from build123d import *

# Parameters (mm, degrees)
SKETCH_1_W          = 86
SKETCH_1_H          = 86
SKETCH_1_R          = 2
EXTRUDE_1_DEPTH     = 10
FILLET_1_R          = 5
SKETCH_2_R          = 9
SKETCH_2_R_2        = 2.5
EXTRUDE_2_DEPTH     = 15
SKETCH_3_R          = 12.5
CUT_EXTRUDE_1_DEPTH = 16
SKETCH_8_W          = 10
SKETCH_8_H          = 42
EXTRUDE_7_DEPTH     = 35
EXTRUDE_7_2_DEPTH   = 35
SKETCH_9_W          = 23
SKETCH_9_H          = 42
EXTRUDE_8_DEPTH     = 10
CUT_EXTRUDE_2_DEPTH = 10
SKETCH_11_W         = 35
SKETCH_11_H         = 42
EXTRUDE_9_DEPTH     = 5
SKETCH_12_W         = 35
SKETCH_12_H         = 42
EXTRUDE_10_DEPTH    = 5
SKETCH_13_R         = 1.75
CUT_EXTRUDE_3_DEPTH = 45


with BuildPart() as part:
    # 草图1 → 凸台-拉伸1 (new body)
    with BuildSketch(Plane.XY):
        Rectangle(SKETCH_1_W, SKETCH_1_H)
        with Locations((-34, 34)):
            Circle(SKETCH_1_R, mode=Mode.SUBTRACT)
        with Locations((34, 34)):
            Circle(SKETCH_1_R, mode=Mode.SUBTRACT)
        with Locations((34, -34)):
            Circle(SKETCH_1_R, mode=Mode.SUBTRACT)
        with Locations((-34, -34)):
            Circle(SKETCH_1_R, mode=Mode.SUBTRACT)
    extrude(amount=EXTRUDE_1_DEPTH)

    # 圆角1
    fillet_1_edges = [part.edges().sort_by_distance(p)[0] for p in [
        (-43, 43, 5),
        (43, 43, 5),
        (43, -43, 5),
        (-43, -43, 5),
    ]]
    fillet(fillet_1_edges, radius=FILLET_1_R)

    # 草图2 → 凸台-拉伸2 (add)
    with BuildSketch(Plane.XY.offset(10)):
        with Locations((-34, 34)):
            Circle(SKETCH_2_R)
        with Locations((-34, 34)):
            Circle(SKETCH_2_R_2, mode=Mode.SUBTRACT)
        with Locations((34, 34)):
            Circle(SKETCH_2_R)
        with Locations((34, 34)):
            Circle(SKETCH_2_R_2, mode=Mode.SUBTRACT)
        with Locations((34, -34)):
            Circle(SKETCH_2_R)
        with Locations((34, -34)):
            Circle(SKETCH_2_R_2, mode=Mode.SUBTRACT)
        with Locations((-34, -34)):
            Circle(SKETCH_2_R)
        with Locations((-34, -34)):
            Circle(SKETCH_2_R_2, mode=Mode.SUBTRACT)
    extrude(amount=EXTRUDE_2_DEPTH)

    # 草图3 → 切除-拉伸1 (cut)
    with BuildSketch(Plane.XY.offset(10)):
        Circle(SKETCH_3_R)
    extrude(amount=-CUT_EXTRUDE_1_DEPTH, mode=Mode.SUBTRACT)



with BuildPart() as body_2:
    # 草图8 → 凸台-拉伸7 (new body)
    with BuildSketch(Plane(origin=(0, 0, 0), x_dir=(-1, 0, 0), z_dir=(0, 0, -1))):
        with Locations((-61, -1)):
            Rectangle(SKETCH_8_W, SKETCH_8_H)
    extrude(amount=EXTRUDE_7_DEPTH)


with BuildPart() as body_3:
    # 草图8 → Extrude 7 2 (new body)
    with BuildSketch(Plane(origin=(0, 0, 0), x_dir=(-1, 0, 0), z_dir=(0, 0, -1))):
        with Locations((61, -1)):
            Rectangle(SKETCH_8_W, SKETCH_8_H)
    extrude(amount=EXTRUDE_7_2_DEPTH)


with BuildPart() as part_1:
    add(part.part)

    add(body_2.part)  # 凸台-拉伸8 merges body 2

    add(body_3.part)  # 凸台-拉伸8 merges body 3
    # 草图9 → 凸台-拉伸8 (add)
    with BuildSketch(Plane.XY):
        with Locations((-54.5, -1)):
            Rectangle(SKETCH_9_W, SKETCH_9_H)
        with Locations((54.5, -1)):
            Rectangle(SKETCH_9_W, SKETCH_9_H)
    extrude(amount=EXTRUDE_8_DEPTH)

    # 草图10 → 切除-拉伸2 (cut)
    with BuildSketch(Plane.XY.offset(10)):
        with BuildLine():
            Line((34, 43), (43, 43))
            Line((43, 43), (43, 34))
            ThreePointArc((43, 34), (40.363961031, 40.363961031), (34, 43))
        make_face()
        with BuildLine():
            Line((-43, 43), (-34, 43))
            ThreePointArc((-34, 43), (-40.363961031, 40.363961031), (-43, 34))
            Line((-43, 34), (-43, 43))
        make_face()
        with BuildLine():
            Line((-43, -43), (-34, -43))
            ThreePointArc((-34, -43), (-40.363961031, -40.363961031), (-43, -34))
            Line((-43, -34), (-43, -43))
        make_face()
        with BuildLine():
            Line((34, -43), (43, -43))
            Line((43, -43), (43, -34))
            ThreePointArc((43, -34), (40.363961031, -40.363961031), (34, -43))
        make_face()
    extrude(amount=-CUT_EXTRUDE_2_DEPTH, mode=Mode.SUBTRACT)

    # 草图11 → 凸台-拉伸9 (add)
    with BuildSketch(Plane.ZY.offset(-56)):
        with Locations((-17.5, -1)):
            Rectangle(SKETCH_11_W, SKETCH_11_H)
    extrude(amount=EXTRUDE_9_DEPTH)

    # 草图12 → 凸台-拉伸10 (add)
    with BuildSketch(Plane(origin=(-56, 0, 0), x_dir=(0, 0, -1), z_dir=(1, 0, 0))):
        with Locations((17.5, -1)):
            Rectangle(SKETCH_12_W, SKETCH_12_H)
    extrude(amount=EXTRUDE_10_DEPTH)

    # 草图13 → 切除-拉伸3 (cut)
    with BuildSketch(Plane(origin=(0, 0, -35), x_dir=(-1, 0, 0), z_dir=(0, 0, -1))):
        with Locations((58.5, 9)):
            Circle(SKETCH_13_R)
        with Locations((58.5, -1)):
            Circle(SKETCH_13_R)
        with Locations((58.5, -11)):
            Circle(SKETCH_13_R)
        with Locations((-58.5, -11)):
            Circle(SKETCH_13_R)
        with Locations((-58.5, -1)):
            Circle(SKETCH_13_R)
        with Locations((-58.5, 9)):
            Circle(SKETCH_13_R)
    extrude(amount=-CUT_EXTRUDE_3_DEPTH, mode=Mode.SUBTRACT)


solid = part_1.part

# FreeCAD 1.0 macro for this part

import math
import FreeCAD as App
import Part
import Sketcher

V = App.Vector
Q = App.Units.Quantity


def edges_at(feature, points):
    """Names of the edges that pass closest to the given points."""
    edges = feature.Shape.Edges
    near = lambda p: min(range(len(edges)), key=lambda i: edges[i].distToShape(Part.Vertex(*p))[0])
    return sorted({f"Edge{near(p) + 1}" for p in points})

doc = App.newDocument("Part")
body = doc.addObject("PartDesign::Body", "Body")

sketch1 = body.newObject("Sketcher::SketchObject", "Sketch")
sketch1.AttachmentSupport = (doc.getObject("XY_Plane"), [""])
sketch1.MapMode = "FlatFace"
sketch1.addGeometry([
    Part.LineSegment(V(-43, 43, 0), V(-43, -43, 0)),
    Part.LineSegment(V(-43, -43, 0), V(43, -43, 0)),
    Part.LineSegment(V(43, -43, 0), V(43, 43, 0)),
    Part.LineSegment(V(43, 43, 0), V(-43, 43, 0)),
    Part.Circle(V(-34, -34, 0), V(0, 0, 1), 2),
    Part.Circle(V(34, -34, 0), V(0, 0, 1), 2),
    Part.Circle(V(-34, 34, 0), V(0, 0, 1), 2),
    Part.Circle(V(34, 34, 0), V(0, 0, 1), 2),
], False)
sketch1.addConstraint([
    Sketcher.Constraint("Coincident", 0, 2, 1, 1),
    Sketcher.Constraint("Coincident", 1, 2, 2, 1),
    Sketcher.Constraint("Coincident", 2, 2, 3, 1),
    Sketcher.Constraint("Coincident", 3, 2, 0, 1),
    Sketcher.Constraint("Vertical", 0),
    Sketcher.Constraint("Horizontal", 1),
    Sketcher.Constraint("Vertical", 2),
    Sketcher.Constraint("Horizontal", 3),
    Sketcher.Constraint("Equal", 4, 5),
    Sketcher.Constraint("Equal", 5, 6),
    Sketcher.Constraint("Equal", 6, 7),
    Sketcher.Constraint("Symmetric", 5, 3, 6, 3, -1, 1),
    Sketcher.Constraint("Symmetric", 4, 3, 7, 3, -1, 1),
    Sketcher.Constraint("Symmetric", 0, 2, 2, 2, -1, 1),
    Sketcher.Constraint("Symmetric", 4, 3, 5, 3, -2),
    Sketcher.Constraint("Equal", 3, 0),
    Sketcher.Constraint("Diameter", 4, Q("4 mm")),
    Sketcher.Constraint("DistanceX", 1, 1, 1, 2, Q("86 mm")),
    Sketcher.Constraint("DistanceX", 4, 3, -1, 1, Q("34 mm")),
    Sketcher.Constraint("DistanceY", 4, 3, -1, 1, Q("34 mm")),
])
pad1 = body.newObject("PartDesign::Pad", "Pad")
pad1.Profile = sketch1
pad1.Length = 10
doc.recompute()

fillet = body.newObject("PartDesign::Fillet", "Fillet")
fillet.Base = (pad1, edges_at(pad1, [
    (-43, 43, 5),
    (43, 43, 5),
    (43, -43, 5),
    (-43, -43, 5),
]))
fillet.Radius = 5

sketch2 = body.newObject("Sketcher::SketchObject", "Sketch001")
sketch2.AttachmentSupport = (doc.getObject("XY_Plane"), [""])
sketch2.MapMode = "FlatFace"
sketch2.AttachmentOffset = App.Placement(V(0, 0, 10), App.Rotation())
sketch2.addGeometry([
    Part.Circle(V(-34, 34, 0), V(0, 0, 1), 9),
    Part.Circle(V(-34, 34, 0), V(0, 0, 1), 2.5),
    Part.Circle(V(34, 34, 0), V(0, 0, 1), 9),
    Part.Circle(V(34, 34, 0), V(0, 0, 1), 2.5),
    Part.Circle(V(34, -34, 0), V(0, 0, 1), 9),
    Part.Circle(V(34, -34, 0), V(0, 0, 1), 2.5),
    Part.Circle(V(-34, -34, 0), V(0, 0, 1), 9),
    Part.Circle(V(-34, -34, 0), V(0, 0, 1), 2.5),
], False)
sketch2.addConstraint([
    Sketcher.Constraint("Coincident", 1, 3, 0, 3),
    Sketcher.Constraint("Coincident", 3, 3, 2, 3),
    Sketcher.Constraint("Coincident", 5, 3, 4, 3),
    Sketcher.Constraint("Coincident", 7, 3, 6, 3),
    Sketcher.Constraint("Equal", 0, 2),
    Sketcher.Constraint("Equal", 1, 3),
    Sketcher.Constraint("Equal", 2, 4),
    Sketcher.Constraint("Equal", 3, 5),
    Sketcher.Constraint("Equal", 4, 6),
    Sketcher.Constraint("Equal", 5, 7),
    Sketcher.Constraint("Symmetric", 0, 3, 4, 3, -1, 1),
    Sketcher.Constraint("Symmetric", 2, 3, 6, 3, -1, 1),
    Sketcher.Constraint("Symmetric", 0, 3, 2, 3, -2),
    Sketcher.Constraint("Diameter", 0, Q("18 mm")),
    Sketcher.Constraint("Diameter", 1, Q("5 mm")),
    Sketcher.Constraint("DistanceX", 0, 3, -1, 1, Q("34 mm")),
    Sketcher.Constraint("DistanceY", -1, 1, 0, 3, Q("34 mm")),
])
pad2 = body.newObject("PartDesign::Pad", "Pad001")
pad2.Profile = sketch2
pad2.Length = 15

sketch3 = body.newObject("Sketcher::SketchObject", "Sketch002")
sketch3.AttachmentSupport = (doc.getObject("XY_Plane"), [""])
sketch3.MapMode = "FlatFace"
sketch3.AttachmentOffset = App.Placement(V(0, 0, 10), App.Rotation())
sketch3.addGeometry(Part.Circle(V(0, 0, 0), V(0, 0, 1), 12.5), False)
sketch3.addConstraint([
    Sketcher.Constraint("Coincident", 0, 3, -1, 1),
    Sketcher.Constraint("Diameter", 0, Q("25 mm")),
])
pocket1 = body.newObject("PartDesign::Pocket", "Pocket")
pocket1.Profile = sketch3
pocket1.Length = 16
body2 = doc.addObject("PartDesign::Body", "Body001")

sketch4 = body2.newObject("Sketcher::SketchObject", "Sketch003")
sketch4.AttachmentSupport = (doc.getObject("XY_Plane001"), [""])
sketch4.MapMode = "FlatFace"
sketch4.addGeometry([
    Part.LineSegment(V(66, 20, 0), V(66, -22, 0)),
    Part.LineSegment(V(66, -22, 0), V(56, -22, 0)),
    Part.LineSegment(V(56, -22, 0), V(56, 20, 0)),
    Part.LineSegment(V(56, 20, 0), V(66, 20, 0)),
], False)
sketch4.addConstraint([
    Sketcher.Constraint("Coincident", 0, 2, 1, 1),
    Sketcher.Constraint("Coincident", 1, 2, 2, 1),
    Sketcher.Constraint("Coincident", 2, 2, 3, 1),
    Sketcher.Constraint("Coincident", 3, 2, 0, 1),
    Sketcher.Constraint("Vertical", 0),
    Sketcher.Constraint("Horizontal", 1),
    Sketcher.Constraint("Vertical", 2),
    Sketcher.Constraint("Horizontal", 3),
    Sketcher.Constraint("DistanceX", 1, 2, 1, 1, Q("10 mm")),
    Sketcher.Constraint("DistanceY", 0, 2, 0, 1, Q("42 mm")),
    Sketcher.Constraint("DistanceX", -1, 1, 0, 2, Q("66 mm")),
    Sketcher.Constraint("DistanceY", 0, 2, -1, 1, Q("22 mm")),
])
pad3 = body2.newObject("PartDesign::Pad", "Pad002")
pad3.Profile = sketch4
pad3.Length = 35
pad3.Reversed = True
body3 = doc.addObject("PartDesign::Body", "Body002")

sketch5 = body3.newObject("Sketcher::SketchObject", "Sketch004")
sketch5.AttachmentSupport = (doc.getObject("XY_Plane002"), [""])
sketch5.MapMode = "FlatFace"
sketch5.addGeometry([
    Part.LineSegment(V(-56, 20, 0), V(-56, -22, 0)),
    Part.LineSegment(V(-56, -22, 0), V(-66, -22, 0)),
    Part.LineSegment(V(-66, -22, 0), V(-66, 20, 0)),
    Part.LineSegment(V(-66, 20, 0), V(-56, 20, 0)),
], False)
sketch5.addConstraint([
    Sketcher.Constraint("Coincident", 0, 2, 1, 1),
    Sketcher.Constraint("Coincident", 1, 2, 2, 1),
    Sketcher.Constraint("Coincident", 2, 2, 3, 1),
    Sketcher.Constraint("Coincident", 3, 2, 0, 1),
    Sketcher.Constraint("Vertical", 0),
    Sketcher.Constraint("Horizontal", 1),
    Sketcher.Constraint("Vertical", 2),
    Sketcher.Constraint("Horizontal", 3),
    Sketcher.Constraint("DistanceX", 1, 2, 1, 1, Q("10 mm")),
    Sketcher.Constraint("DistanceY", 0, 2, 0, 1, Q("42 mm")),
    Sketcher.Constraint("DistanceX", 0, 2, -1, 1, Q("56 mm")),
    Sketcher.Constraint("DistanceY", 0, 2, -1, 1, Q("22 mm")),
])
pad4 = body3.newObject("PartDesign::Pad", "Pad003")
pad4.Profile = sketch5
pad4.Length = 35
pad4.Reversed = True
body.AllowCompound = True
doc.recompute()

boolean = body.newObject("PartDesign::Boolean", "Boolean")
boolean.Type = "Fuse"
boolean.addObjects([body2])
doc.recompute()

boolean2 = body.newObject("PartDesign::Boolean", "Boolean001")
boolean2.Type = "Fuse"
boolean2.addObjects([body3])

sketch6 = body.newObject("Sketcher::SketchObject", "Sketch005")
sketch6.AttachmentSupport = (doc.getObject("XY_Plane"), [""])
sketch6.MapMode = "FlatFace"
sketch6.addGeometry([
    Part.LineSegment(V(-66, 20, 0), V(-66, -22, 0)),
    Part.LineSegment(V(-66, -22, 0), V(-43, -22, 0)),
    Part.LineSegment(V(-43, -22, 0), V(-43, 20, 0)),
    Part.LineSegment(V(-43, 20, 0), V(-66, 20, 0)),
    Part.LineSegment(V(43, 20, 0), V(43, -22, 0)),
    Part.LineSegment(V(43, -22, 0), V(66, -22, 0)),
    Part.LineSegment(V(66, -22, 0), V(66, 20, 0)),
    Part.LineSegment(V(66, 20, 0), V(43, 20, 0)),
], False)
sketch6.addConstraint([
    Sketcher.Constraint("Coincident", 0, 2, 1, 1),
    Sketcher.Constraint("Coincident", 1, 2, 2, 1),
    Sketcher.Constraint("Coincident", 2, 2, 3, 1),
    Sketcher.Constraint("Coincident", 3, 2, 0, 1),
    Sketcher.Constraint("Coincident", 4, 2, 5, 1),
    Sketcher.Constraint("Coincident", 5, 2, 6, 1),
    Sketcher.Constraint("Coincident", 6, 2, 7, 1),
    Sketcher.Constraint("Coincident", 7, 2, 4, 1),
    Sketcher.Constraint("Vertical", 0),
    Sketcher.Constraint("Horizontal", 1),
    Sketcher.Constraint("Vertical", 2),
    Sketcher.Constraint("Horizontal", 3),
    Sketcher.Constraint("Vertical", 4),
    Sketcher.Constraint("Horizontal", 5),
    Sketcher.Constraint("Vertical", 6),
    Sketcher.Constraint("Horizontal", 7),
    Sketcher.Constraint("Symmetric", 1, 2, 4, 2, -2),
    Sketcher.Constraint("Symmetric", 3, 2, 6, 2, -2),
    Sketcher.Constraint("DistanceX", 1, 1, 1, 2, Q("23 mm")),
    Sketcher.Constraint("DistanceY", 0, 2, 0, 1, Q("42 mm")),
    Sketcher.Constraint("DistanceX", 0, 2, -1, 1, Q("66 mm")),
    Sketcher.Constraint("DistanceY", 0, 2, -1, 1, Q("22 mm")),
])
pad5 = body.newObject("PartDesign::Pad", "Pad004")
pad5.Profile = sketch6
pad5.Length = 10

sketch7 = body.newObject("Sketcher::SketchObject", "Sketch006")
sketch7.AttachmentSupport = (doc.getObject("XY_Plane"), [""])
sketch7.MapMode = "FlatFace"
sketch7.AttachmentOffset = App.Placement(V(0, 0, 10), App.Rotation())
sketch7.addGeometry([
    Part.LineSegment(V(43, 43, 0), V(34, 43, 0)),
    Part.ArcOfCircle(Part.Circle(V(34, 34, 0), V(0, 0, 1), 9), math.radians(0), math.radians(90)),
    Part.LineSegment(V(43, 34, 0), V(43, 43, 0)),
    Part.LineSegment(V(-34, 43, 0), V(-43, 43, 0)),
    Part.LineSegment(V(-43, 43, 0), V(-43, 34, 0)),
    Part.ArcOfCircle(Part.Circle(V(-34, 34, 0), V(0, 0, 1), 9), math.radians(90), math.radians(180)),
    Part.LineSegment(V(-43, -43, 0), V(-34, -43, 0)),
    Part.ArcOfCircle(Part.Circle(V(-34, -34, 0), V(0, 0, 1), 9), math.radians(180), math.radians(270)),
    Part.LineSegment(V(-43, -34, 0), V(-43, -43, 0)),
    Part.LineSegment(V(34, -43, 0), V(43, -43, 0)),
    Part.LineSegment(V(43, -43, 0), V(43, -34, 0)),
    Part.ArcOfCircle(Part.Circle(V(34, -34, 0), V(0, 0, 1), 9), math.radians(-90), math.radians(0)),
], False)
sketch7.addConstraint([
    Sketcher.Constraint("Tangent", 0, 2, 1, 2),
    Sketcher.Constraint("Tangent", 1, 1, 2, 1),
    Sketcher.Constraint("Coincident", 2, 2, 0, 1),
    Sketcher.Constraint("Coincident", 3, 2, 4, 1),
    Sketcher.Constraint("Tangent", 4, 2, 5, 2),
    Sketcher.Constraint("Tangent", 5, 1, 3, 1),
    Sketcher.Constraint("Tangent", 6, 2, 7, 2),
    Sketcher.Constraint("Tangent", 7, 1, 8, 1),
    Sketcher.Constraint("Coincident", 8, 2, 6, 1),
    Sketcher.Constraint("Coincident", 9, 2, 10, 1),
    Sketcher.Constraint("Tangent", 10, 2, 11, 2),
    Sketcher.Constraint("Tangent", 11, 1, 9, 1),
    Sketcher.Constraint("Horizontal", 0),
    Sketcher.Constraint("Vertical", 2),
    Sketcher.Constraint("Horizontal", 3),
    Sketcher.Constraint("Vertical", 4),
    Sketcher.Constraint("Horizontal", 6),
    Sketcher.Constraint("Vertical", 8),
    Sketcher.Constraint("Horizontal", 9),
    Sketcher.Constraint("Vertical", 10),
    Sketcher.Constraint("Equal", 1, 5),
    Sketcher.Constraint("Equal", 5, 7),
    Sketcher.Constraint("Equal", 7, 11),
    Sketcher.Constraint("Symmetric", 1, 3, 7, 3, -1, 1),
    Sketcher.Constraint("Symmetric", 5, 3, 11, 3, -1, 1),
    Sketcher.Constraint("Symmetric", 1, 3, 5, 3, -2),
    Sketcher.Constraint("Radius", 1, Q("9 mm")),
    Sketcher.Constraint("DistanceX", -1, 1, 1, 3, Q("34 mm")),
    Sketcher.Constraint("DistanceY", -1, 1, 1, 3, Q("34 mm")),
])
pocket2 = body.newObject("PartDesign::Pocket", "Pocket001")
pocket2.Profile = sketch7
pocket2.Length = 10

sketch8 = body.newObject("Sketcher::SketchObject", "Sketch007")
sketch8.AttachmentSupport = (doc.getObject("YZ_Plane"), [""])
sketch8.MapMode = "FlatFace"
sketch8.AttachmentOffset = App.Placement(V(0, 0, 56), App.Rotation())
sketch8.addGeometry([
    Part.LineSegment(V(20, -35, 0), V(-22, -35, 0)),
    Part.LineSegment(V(-22, -35, 0), V(-22, 0, 0)),
    Part.LineSegment(V(-22, 0, 0), V(20, 0, 0)),
    Part.LineSegment(V(20, 0, 0), V(20, -35, 0)),
], False)
sketch8.addConstraint([
    Sketcher.Constraint("Coincident", 0, 2, 1, 1),
    Sketcher.Constraint("Coincident", 1, 2, 2, 1),
    Sketcher.Constraint("Coincident", 2, 2, 3, 1),
    Sketcher.Constraint("Coincident", 3, 2, 0, 1),
    Sketcher.Constraint("Horizontal", 0),
    Sketcher.Constraint("Vertical", 1),
    Sketcher.Constraint("Horizontal", 2),
    Sketcher.Constraint("Vertical", 3),
    Sketcher.Constraint("PointOnObject", 1, 2, -1),
    Sketcher.Constraint("DistanceX", 0, 2, 0, 1, Q("42 mm")),
    Sketcher.Constraint("DistanceY", 1, 1, 1, 2, Q("35 mm")),
    Sketcher.Constraint("DistanceX", 0, 2, -1, 1, Q("22 mm")),
])
pad6 = body.newObject("PartDesign::Pad", "Pad005")
pad6.Profile = sketch8
pad6.Length = 5
pad6.Reversed = True

sketch9 = body.newObject("Sketcher::SketchObject", "Sketch008")
sketch9.AttachmentSupport = (doc.getObject("YZ_Plane"), [""])
sketch9.MapMode = "FlatFace"
sketch9.AttachmentOffset = App.Placement(V(0, 0, -56), App.Rotation())
sketch9.addGeometry([
    Part.LineSegment(V(20, 0, 0), V(-22, 0, 0)),
    Part.LineSegment(V(-22, 0, 0), V(-22, -35, 0)),
    Part.LineSegment(V(-22, -35, 0), V(20, -35, 0)),
    Part.LineSegment(V(20, -35, 0), V(20, 0, 0)),
], False)
sketch9.addConstraint([
    Sketcher.Constraint("Coincident", 0, 2, 1, 1),
    Sketcher.Constraint("Coincident", 1, 2, 2, 1),
    Sketcher.Constraint("Coincident", 2, 2, 3, 1),
    Sketcher.Constraint("Coincident", 3, 2, 0, 1),
    Sketcher.Constraint("Horizontal", 0),
    Sketcher.Constraint("Vertical", 1),
    Sketcher.Constraint("Horizontal", 2),
    Sketcher.Constraint("Vertical", 3),
    Sketcher.Constraint("PointOnObject", 0, 2, -1),
    Sketcher.Constraint("DistanceX", 0, 2, 0, 1, Q("42 mm")),
    Sketcher.Constraint("DistanceY", 1, 2, 1, 1, Q("35 mm")),
    Sketcher.Constraint("DistanceX", 0, 2, -1, 1, Q("22 mm")),
])
pad7 = body.newObject("PartDesign::Pad", "Pad006")
pad7.Profile = sketch9
pad7.Length = 5

sketch10 = body.newObject("Sketcher::SketchObject", "Sketch009")
sketch10.AttachmentSupport = (doc.getObject("XY_Plane"), [""])
sketch10.MapMode = "FlatFace"
sketch10.AttachmentOffset = App.Placement(V(0, 0, -35), App.Rotation())
sketch10.addGeometry([
    Part.Circle(V(-58.5, 9, 0), V(0, 0, 1), 1.75),
    Part.Circle(V(-58.5, -1, 0), V(0, 0, 1), 1.75),
    Part.Circle(V(-58.5, -11, 0), V(0, 0, 1), 1.75),
    Part.Circle(V(58.5, -11, 0), V(0, 0, 1), 1.75),
    Part.Circle(V(58.5, -1, 0), V(0, 0, 1), 1.75),
    Part.Circle(V(58.5, 9, 0), V(0, 0, 1), 1.75),
], False)
sketch10.addConstraint([
    Sketcher.Constraint("Equal", 0, 1),
    Sketcher.Constraint("Equal", 1, 2),
    Sketcher.Constraint("Equal", 2, 3),
    Sketcher.Constraint("Equal", 3, 4),
    Sketcher.Constraint("Equal", 4, 5),
    Sketcher.Constraint("Symmetric", 2, 3, 3, 3, -2),
    Sketcher.Constraint("Symmetric", 1, 3, 4, 3, -2),
    Sketcher.Constraint("Symmetric", 0, 3, 5, 3, -2),
    Sketcher.Constraint("Vertical", 0, 3, 1, 3),
    Sketcher.Constraint("Vertical", 1, 3, 2, 3),
    Sketcher.Constraint("Diameter", 0, Q("3.5 mm")),
    Sketcher.Constraint("DistanceY", -1, 1, 0, 3, Q("9 mm")),
    Sketcher.Constraint("DistanceY", 1, 3, -1, 1, Q("1 mm")),
    Sketcher.Constraint("DistanceY", 2, 3, -1, 1, Q("11 mm")),
    Sketcher.Constraint("DistanceX", 2, 3, 3, 3, Q("117 mm")),
])
pocket3 = body.newObject("PartDesign::Pocket", "Pocket002")
pocket3.Profile = sketch10
pocket3.Length = 45
pocket3.Reversed = True

doc.recompute()
